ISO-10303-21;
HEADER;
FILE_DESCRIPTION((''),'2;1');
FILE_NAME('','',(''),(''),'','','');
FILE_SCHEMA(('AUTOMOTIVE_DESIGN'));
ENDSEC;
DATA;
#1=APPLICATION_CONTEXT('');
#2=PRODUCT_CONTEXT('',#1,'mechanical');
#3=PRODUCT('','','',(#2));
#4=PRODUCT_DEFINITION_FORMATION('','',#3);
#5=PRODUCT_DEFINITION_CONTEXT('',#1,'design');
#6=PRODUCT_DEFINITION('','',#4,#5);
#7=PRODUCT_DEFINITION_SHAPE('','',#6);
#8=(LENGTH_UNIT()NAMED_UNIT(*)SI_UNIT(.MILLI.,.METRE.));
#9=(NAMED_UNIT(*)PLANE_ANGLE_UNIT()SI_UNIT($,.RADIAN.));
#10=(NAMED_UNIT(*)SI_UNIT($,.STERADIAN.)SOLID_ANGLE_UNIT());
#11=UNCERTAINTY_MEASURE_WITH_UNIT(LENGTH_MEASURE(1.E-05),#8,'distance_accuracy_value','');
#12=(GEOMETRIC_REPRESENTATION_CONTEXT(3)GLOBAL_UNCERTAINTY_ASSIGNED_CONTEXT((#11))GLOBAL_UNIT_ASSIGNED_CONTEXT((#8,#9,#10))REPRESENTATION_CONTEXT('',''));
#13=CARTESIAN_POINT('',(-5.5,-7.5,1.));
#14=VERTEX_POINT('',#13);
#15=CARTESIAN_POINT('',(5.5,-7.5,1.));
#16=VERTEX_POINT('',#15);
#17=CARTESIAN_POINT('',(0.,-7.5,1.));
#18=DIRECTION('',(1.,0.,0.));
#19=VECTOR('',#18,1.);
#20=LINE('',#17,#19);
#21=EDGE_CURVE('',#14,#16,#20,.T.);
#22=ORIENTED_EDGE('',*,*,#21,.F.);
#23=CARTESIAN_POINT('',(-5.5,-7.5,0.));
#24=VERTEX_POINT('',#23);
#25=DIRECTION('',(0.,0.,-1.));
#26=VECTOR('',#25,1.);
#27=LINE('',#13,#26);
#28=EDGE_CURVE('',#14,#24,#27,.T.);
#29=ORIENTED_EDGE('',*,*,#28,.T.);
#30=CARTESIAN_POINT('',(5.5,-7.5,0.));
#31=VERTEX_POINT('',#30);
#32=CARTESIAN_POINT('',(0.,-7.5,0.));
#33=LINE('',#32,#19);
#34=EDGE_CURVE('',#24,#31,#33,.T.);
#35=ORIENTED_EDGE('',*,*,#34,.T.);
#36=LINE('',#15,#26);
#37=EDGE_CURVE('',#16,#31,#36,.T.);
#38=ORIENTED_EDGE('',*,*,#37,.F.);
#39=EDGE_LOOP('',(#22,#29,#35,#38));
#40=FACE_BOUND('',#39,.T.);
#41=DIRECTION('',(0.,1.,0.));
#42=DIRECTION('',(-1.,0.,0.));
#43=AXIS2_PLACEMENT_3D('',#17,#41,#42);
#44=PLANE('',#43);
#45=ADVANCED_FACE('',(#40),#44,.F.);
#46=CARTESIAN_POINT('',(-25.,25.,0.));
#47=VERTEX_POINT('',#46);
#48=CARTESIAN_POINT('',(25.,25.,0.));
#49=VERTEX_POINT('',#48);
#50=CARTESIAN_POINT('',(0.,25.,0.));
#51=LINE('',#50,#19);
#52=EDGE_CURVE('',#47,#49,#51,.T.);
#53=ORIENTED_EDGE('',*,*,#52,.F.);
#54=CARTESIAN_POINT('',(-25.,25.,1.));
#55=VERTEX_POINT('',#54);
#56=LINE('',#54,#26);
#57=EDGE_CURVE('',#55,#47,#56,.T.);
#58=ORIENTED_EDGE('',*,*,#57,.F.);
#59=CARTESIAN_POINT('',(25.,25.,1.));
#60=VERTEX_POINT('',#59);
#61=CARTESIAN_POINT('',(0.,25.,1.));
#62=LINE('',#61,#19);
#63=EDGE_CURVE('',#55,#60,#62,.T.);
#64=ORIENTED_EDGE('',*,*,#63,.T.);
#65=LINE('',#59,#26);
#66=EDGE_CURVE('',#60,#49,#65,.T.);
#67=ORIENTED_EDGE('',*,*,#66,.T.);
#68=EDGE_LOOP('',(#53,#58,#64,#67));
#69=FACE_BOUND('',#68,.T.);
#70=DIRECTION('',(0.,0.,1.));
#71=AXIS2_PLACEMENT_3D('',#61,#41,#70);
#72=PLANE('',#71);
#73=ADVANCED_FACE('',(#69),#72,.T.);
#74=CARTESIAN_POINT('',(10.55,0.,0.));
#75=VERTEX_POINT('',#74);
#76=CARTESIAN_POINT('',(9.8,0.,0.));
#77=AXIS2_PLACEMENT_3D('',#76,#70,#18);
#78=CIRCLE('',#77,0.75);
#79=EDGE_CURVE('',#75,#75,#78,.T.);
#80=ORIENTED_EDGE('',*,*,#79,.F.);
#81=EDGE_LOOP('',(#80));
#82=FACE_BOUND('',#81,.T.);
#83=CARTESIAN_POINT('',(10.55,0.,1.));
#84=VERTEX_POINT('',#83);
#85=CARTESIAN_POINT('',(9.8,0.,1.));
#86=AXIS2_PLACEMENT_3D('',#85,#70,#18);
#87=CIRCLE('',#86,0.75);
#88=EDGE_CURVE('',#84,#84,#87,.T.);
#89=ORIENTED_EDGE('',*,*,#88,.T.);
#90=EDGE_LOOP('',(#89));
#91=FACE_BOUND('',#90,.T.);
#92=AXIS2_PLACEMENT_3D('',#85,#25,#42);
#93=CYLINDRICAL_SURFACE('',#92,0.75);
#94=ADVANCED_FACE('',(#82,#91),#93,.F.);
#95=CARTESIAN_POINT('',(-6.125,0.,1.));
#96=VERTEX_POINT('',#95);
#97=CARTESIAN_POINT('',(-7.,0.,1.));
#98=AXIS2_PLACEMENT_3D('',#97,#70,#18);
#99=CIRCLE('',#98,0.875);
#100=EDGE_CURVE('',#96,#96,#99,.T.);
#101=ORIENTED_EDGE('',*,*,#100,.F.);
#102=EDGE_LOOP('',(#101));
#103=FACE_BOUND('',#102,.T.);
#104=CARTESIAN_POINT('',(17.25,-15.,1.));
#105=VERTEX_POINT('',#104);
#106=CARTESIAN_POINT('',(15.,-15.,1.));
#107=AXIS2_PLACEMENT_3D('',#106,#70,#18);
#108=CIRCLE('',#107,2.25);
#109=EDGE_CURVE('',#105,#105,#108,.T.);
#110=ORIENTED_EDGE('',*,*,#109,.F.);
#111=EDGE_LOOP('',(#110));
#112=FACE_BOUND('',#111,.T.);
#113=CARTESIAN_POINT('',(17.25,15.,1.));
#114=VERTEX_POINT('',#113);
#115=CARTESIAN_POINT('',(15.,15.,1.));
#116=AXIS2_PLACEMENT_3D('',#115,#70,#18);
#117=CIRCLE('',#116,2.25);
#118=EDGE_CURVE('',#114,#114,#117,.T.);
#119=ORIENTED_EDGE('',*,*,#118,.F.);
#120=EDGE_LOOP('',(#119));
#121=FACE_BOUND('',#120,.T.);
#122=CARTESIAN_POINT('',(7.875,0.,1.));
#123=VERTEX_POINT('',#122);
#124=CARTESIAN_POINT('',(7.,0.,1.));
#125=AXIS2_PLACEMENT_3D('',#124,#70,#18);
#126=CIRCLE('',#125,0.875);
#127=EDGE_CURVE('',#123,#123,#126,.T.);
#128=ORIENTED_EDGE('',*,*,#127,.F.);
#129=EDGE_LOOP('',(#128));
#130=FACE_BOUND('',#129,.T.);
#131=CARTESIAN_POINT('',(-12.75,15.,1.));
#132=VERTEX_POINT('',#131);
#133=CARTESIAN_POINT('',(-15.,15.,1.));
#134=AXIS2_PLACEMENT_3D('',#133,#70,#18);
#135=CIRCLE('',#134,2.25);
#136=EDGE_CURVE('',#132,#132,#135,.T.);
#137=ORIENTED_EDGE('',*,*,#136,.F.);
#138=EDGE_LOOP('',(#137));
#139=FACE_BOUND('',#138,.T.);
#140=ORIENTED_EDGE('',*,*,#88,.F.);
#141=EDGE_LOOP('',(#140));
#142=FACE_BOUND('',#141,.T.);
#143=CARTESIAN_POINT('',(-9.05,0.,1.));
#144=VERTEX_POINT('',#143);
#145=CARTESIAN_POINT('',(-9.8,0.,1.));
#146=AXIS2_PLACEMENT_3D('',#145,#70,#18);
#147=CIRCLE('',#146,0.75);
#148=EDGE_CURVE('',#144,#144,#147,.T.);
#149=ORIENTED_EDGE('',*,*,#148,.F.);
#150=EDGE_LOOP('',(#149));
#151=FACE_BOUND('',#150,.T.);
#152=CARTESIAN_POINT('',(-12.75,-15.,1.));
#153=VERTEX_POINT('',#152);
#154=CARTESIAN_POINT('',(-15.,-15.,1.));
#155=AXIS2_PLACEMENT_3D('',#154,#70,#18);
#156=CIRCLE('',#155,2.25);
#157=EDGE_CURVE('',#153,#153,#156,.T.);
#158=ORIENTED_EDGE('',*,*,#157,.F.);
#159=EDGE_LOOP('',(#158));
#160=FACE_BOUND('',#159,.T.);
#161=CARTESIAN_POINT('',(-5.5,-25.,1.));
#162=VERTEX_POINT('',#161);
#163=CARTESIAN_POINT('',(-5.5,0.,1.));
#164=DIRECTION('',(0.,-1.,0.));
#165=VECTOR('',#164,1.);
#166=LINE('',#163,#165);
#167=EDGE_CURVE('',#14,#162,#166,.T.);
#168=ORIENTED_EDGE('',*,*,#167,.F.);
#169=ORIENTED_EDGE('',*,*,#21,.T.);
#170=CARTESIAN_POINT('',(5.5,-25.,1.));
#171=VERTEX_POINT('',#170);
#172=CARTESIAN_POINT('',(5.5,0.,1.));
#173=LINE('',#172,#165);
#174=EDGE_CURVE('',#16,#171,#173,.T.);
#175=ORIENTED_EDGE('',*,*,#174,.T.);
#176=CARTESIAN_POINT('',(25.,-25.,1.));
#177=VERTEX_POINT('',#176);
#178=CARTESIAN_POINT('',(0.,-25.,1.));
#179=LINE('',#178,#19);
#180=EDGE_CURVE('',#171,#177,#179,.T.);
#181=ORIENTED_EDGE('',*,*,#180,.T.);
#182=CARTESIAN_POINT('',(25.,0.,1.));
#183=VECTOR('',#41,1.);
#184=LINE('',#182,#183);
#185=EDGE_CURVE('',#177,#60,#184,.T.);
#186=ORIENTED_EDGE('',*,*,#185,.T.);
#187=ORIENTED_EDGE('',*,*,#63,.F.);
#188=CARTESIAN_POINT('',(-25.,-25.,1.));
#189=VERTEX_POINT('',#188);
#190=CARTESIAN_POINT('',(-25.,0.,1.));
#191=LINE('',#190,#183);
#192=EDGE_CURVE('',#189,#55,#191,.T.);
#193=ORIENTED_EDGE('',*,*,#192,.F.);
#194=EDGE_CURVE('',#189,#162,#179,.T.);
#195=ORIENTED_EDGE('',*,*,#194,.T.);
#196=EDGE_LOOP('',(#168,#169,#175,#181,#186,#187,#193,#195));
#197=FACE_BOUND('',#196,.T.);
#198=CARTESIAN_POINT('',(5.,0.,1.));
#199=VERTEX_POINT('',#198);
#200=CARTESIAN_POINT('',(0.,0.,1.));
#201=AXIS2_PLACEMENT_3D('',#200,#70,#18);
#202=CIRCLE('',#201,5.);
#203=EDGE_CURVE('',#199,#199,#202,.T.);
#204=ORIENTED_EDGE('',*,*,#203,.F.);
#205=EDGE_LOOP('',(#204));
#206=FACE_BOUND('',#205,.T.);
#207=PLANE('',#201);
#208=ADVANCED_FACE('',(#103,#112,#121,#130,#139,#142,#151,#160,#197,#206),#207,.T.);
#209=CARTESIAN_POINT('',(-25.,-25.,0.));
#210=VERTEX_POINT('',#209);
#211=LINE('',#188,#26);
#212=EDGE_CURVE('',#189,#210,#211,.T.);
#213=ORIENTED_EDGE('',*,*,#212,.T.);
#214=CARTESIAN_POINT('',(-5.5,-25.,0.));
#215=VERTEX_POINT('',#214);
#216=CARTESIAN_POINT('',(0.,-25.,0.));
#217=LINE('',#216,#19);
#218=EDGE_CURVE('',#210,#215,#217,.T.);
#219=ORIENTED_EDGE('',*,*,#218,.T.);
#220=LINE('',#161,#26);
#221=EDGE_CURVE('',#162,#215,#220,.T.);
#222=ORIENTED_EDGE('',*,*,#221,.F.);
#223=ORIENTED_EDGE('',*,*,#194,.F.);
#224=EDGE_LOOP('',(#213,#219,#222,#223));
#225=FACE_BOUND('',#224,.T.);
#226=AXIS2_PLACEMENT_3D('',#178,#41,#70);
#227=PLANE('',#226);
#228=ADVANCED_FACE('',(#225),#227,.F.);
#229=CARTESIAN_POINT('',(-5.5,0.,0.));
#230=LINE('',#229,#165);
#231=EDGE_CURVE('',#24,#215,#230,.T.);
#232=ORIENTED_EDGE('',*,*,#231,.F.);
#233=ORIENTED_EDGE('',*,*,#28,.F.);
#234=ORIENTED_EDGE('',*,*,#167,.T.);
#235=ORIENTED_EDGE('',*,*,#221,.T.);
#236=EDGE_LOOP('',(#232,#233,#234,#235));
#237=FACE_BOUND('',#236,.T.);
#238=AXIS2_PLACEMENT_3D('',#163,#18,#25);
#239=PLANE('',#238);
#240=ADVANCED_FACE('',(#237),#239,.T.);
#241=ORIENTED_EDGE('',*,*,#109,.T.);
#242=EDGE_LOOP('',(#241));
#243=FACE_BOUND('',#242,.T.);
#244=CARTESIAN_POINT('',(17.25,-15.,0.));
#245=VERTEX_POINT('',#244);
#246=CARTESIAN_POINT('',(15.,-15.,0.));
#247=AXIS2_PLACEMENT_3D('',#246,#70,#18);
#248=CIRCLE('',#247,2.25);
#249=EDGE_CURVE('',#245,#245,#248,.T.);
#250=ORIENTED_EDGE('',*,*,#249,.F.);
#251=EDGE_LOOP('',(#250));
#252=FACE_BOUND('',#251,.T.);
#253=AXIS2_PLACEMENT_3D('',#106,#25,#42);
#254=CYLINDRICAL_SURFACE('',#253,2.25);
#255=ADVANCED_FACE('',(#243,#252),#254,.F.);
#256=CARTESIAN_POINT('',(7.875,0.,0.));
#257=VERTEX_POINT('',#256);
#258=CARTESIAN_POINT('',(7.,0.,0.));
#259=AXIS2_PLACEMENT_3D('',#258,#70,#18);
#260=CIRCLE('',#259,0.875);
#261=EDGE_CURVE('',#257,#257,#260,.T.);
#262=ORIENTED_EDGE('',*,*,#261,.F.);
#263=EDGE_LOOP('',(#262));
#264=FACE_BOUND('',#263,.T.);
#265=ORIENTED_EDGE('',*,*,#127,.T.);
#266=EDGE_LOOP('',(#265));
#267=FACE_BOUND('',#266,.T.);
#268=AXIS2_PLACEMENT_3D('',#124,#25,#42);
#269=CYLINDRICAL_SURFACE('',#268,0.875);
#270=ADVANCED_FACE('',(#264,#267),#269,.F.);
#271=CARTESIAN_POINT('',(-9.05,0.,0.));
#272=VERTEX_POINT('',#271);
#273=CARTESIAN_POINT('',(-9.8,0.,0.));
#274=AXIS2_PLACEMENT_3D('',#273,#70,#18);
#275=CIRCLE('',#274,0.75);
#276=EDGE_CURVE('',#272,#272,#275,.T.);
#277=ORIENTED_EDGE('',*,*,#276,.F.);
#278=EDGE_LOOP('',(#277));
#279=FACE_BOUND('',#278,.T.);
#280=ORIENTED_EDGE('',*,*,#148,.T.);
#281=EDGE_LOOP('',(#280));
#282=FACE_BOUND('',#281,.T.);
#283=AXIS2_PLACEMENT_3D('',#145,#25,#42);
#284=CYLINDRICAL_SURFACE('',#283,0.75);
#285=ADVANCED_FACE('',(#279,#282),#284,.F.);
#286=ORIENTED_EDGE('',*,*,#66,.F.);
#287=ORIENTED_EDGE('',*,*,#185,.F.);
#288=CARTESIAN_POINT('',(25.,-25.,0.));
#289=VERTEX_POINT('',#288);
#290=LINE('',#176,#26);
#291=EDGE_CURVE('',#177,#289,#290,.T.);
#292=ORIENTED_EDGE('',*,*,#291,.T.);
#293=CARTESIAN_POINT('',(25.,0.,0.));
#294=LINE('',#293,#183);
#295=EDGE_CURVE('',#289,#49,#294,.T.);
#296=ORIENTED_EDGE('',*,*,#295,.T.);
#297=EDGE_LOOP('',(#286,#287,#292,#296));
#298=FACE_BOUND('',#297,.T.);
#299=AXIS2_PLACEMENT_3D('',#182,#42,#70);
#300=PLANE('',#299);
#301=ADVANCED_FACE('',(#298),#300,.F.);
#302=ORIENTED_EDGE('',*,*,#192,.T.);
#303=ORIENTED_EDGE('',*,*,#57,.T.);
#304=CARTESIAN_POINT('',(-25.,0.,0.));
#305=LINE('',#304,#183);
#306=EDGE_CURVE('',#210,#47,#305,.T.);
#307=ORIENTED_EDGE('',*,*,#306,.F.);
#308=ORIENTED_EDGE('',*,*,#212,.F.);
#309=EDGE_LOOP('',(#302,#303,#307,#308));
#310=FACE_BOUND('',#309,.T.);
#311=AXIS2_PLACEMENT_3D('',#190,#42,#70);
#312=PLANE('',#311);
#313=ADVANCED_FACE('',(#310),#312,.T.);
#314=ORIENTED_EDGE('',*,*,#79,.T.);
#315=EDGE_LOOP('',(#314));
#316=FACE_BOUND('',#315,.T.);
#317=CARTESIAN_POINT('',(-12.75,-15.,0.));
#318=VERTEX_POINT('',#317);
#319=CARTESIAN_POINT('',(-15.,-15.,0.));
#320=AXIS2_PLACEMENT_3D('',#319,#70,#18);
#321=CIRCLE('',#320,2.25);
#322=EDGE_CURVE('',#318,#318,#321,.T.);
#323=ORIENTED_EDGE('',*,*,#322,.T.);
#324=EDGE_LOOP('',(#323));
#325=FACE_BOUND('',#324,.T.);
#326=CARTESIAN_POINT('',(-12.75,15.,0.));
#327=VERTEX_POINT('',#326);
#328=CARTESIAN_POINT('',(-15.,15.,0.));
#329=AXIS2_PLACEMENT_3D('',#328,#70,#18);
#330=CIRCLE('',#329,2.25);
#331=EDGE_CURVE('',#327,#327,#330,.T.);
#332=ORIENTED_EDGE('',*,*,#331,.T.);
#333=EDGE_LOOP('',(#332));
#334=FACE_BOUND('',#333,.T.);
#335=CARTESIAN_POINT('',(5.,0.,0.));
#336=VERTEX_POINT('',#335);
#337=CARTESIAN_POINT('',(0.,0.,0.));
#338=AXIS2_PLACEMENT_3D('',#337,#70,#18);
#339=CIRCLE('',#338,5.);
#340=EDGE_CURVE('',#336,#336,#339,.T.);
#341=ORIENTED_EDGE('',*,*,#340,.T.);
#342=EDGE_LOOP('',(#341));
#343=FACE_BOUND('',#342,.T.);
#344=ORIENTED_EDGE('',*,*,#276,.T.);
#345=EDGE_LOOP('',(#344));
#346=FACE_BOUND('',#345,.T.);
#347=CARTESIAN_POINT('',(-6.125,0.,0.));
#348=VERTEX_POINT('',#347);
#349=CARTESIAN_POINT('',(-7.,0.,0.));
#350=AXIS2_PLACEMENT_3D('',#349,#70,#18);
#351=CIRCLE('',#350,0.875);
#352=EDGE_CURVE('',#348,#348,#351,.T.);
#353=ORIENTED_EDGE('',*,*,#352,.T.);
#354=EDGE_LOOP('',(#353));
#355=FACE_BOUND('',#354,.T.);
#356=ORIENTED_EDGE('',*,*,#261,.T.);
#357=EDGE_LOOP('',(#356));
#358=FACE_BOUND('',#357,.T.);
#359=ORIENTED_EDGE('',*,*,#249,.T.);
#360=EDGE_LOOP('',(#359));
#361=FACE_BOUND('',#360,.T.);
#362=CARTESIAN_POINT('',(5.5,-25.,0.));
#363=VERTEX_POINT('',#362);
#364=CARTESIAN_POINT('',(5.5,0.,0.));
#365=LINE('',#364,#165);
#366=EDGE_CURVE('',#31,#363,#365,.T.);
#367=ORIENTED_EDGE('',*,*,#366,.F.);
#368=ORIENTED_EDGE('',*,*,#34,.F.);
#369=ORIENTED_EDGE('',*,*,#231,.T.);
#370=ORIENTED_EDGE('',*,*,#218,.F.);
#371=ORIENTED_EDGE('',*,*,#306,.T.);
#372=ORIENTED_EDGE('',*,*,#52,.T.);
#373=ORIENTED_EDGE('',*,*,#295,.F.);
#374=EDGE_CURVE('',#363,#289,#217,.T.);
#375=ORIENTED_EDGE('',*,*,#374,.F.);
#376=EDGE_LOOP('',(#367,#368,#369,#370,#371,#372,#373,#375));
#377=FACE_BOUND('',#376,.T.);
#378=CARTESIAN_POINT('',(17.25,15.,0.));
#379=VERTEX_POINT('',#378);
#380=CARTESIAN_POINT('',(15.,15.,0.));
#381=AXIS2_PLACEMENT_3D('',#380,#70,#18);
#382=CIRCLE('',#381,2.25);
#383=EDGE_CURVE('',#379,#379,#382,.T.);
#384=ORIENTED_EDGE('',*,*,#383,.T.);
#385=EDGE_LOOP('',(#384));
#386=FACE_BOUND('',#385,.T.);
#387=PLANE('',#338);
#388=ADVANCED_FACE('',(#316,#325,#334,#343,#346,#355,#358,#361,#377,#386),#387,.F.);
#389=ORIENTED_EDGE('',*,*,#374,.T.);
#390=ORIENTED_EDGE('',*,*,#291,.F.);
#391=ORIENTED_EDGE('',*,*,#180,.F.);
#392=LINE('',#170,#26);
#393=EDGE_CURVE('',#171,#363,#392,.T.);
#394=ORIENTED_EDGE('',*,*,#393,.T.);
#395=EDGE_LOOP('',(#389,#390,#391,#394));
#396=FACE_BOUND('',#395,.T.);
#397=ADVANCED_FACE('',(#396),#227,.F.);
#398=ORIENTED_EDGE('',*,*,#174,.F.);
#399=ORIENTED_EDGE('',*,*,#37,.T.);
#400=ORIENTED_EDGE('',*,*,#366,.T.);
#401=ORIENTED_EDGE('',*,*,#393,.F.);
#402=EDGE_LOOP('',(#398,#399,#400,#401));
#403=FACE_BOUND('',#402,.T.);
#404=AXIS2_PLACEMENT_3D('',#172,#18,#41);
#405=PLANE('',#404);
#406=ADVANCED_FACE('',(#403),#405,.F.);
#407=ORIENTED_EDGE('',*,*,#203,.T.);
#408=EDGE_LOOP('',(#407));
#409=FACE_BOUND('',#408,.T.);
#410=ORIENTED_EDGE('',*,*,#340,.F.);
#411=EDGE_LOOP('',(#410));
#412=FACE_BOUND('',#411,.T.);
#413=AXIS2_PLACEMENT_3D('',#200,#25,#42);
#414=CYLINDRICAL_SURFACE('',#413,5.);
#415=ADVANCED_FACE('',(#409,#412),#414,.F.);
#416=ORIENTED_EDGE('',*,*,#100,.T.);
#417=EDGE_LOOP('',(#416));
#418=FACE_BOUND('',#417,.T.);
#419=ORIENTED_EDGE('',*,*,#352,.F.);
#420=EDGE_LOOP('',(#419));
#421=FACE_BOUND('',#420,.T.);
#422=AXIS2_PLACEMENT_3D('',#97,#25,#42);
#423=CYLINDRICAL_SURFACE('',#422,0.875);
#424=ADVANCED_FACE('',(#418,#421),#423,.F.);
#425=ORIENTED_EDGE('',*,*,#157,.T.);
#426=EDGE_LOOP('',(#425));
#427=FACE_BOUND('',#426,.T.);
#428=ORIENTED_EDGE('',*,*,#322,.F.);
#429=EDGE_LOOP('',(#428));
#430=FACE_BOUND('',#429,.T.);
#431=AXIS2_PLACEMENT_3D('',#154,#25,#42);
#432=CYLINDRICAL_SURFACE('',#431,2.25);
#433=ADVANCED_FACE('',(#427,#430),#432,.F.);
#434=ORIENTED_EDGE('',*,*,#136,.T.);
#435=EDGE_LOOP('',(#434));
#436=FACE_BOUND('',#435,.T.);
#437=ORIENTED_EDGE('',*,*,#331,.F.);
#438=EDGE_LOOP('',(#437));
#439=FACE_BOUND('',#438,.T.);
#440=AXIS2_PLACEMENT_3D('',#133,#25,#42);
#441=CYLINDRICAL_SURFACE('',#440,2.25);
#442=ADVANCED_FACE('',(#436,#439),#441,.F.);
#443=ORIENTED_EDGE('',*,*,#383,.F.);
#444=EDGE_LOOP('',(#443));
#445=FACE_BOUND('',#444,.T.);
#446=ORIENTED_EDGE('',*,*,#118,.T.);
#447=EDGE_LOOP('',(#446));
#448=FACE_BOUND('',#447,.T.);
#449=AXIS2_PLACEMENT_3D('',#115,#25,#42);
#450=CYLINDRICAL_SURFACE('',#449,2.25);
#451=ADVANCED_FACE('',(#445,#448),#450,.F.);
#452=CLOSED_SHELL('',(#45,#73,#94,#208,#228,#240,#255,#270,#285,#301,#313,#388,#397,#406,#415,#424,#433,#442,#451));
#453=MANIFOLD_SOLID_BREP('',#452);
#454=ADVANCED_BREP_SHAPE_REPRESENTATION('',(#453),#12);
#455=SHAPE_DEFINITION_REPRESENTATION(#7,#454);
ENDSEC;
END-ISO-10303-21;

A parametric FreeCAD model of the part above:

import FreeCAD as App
import Part
import Sketcher


def add_polygon(sketch, points):
    """Adds a closed chain of lines whose ends are joined by coincident constraints."""
    first, n = sketch.GeometryCount, len(points)
    for a, b in zip(points, points[1:] + points[:1]):
        sketch.addGeometry(Part.LineSegment(App.Vector(*a, 0), App.Vector(*b, 0)), False)
    for i in range(n):
        sketch.addConstraint(Sketcher.Constraint("Coincident", first + i, 2, first + (i + 1) % n, 1))

doc = App.newDocument("Part")
body = doc.addObject("PartDesign::Body", "Body")

# Sketch on XY plane
sketch1 = doc.addObject("Sketcher::SketchObject", "Sketch")
body.addObject(sketch1)
sketch1.AttachmentSupport = (doc.XY_Plane, [""])
sketch1.MapMode = "FlatFace"
add_polygon(sketch1, [(-25, 25), (-25, -25), (-5.5, -25), (-5.5, -7.5), (5.5, -7.5), (5.5, -25), (25, -25), (25, 25)])  # lines 0-7
sketch1.addGeometry(Part.Circle(App.Vector(-15, -15, 0), App.Vector(0, 0, 1), 2.2), False)  # 8
sketch1.addGeometry(Part.Circle(App.Vector(15, -15, 0), App.Vector(0, 0, 1), 2.2), False)  # 9
sketch1.addGeometry(Part.Circle(App.Vector(-9.8, 0, 0), App.Vector(0, 0, 1), 0.8), False)  # 10
sketch1.addGeometry(Part.Circle(App.Vector(-7, 0, 0), App.Vector(0, 0, 1), 0.9), False)  # 11
sketch1.addGeometry(Part.Circle(App.Vector(-15, 15, 0), App.Vector(0, 0, 1), 2.2), False)  # 12
sketch1.addGeometry(Part.Circle(App.Vector(0, 0, 0), App.Vector(0, 0, 1), 5), False)  # 13
sketch1.addGeometry(Part.Circle(App.Vector(7, 0, 0), App.Vector(0, 0, 1), 0.9), False)  # 14
sketch1.addGeometry(Part.Circle(App.Vector(9.8, 0, 0), App.Vector(0, 0, 1), 0.8), False)  # 15
sketch1.addGeometry(Part.Circle(App.Vector(15, 15, 0), App.Vector(0, 0, 1), 2.2), False)  # 16
sketch1.addConstraint([
    Sketcher.Constraint("Vertical", 0),
    Sketcher.Constraint("Horizontal", 1),
    Sketcher.Constraint("Vertical", 2),
    Sketcher.Constraint("Horizontal", 3),
    Sketcher.Constraint("Vertical", 4),
    Sketcher.Constraint("Horizontal", 5),
    Sketcher.Constraint("Vertical", 6),
    Sketcher.Constraint("Horizontal", 7),
    Sketcher.Constraint("Coincident", 13, 3, -1, 1),
    Sketcher.Constraint("Equal", 8, 9),
    Sketcher.Constraint("Equal", 9, 12),
    Sketcher.Constraint("Equal", 11, 14),
    Sketcher.Constraint("Equal", 10, 15),
    Sketcher.Constraint("Equal", 12, 16),
    Sketcher.Constraint("Symmetric", 9, 3, 12, 3, -1, 1),
    Sketcher.Constraint("Symmetric", 11, 3, 14, 3, -1, 1),
    Sketcher.Constraint("Symmetric", 10, 3, 15, 3, -1, 1),
    Sketcher.Constraint("Symmetric", 8, 3, 16, 3, -1, 1),
    Sketcher.Constraint("Symmetric", 0, 2, 6, 2, -1, 1),
    Sketcher.Constraint("Symmetric", 8, 3, 9, 3, -2),
    Sketcher.Constraint("Symmetric", 1, 2, 4, 2, -2),
    Sketcher.Constraint("PointOnObject", 10, 3, -1),
    Sketcher.Constraint("PointOnObject", 11, 3, -1),
    Sketcher.Constraint("Equal", 7, 0),
    Sketcher.Constraint("Diameter", 13, 10.0),
    Sketcher.Constraint("Diameter", 8, 4.5),
    Sketcher.Constraint("Diameter", 10, 1.5),
    Sketcher.Constraint("Diameter", 11, 1.75),
    Sketcher.Constraint("DistanceX", 3, 1, 3, 2, 11.0),
    Sketcher.Constraint("DistanceX", 7, 2, 7, 1, 50.0),
    Sketcher.Constraint("DistanceY", 2, 1, 2, 2, 17.5),
    Sketcher.Constraint("DistanceX", 8, 3, -1, 1, 15.0),
    Sketcher.Constraint("DistanceY", 8, 3, -1, 1, 15.0),
    Sketcher.Constraint("DistanceX", 11, 3, -1, 1, 7.0),
    Sketcher.Constraint("DistanceX", 10, 3, -1, 1, 9.8),
])
pad1 = doc.addObject("PartDesign::Pad", "Pad")
body.addObject(pad1)
pad1.Profile = sketch1
pad1.Length = 1

doc.recompute()
